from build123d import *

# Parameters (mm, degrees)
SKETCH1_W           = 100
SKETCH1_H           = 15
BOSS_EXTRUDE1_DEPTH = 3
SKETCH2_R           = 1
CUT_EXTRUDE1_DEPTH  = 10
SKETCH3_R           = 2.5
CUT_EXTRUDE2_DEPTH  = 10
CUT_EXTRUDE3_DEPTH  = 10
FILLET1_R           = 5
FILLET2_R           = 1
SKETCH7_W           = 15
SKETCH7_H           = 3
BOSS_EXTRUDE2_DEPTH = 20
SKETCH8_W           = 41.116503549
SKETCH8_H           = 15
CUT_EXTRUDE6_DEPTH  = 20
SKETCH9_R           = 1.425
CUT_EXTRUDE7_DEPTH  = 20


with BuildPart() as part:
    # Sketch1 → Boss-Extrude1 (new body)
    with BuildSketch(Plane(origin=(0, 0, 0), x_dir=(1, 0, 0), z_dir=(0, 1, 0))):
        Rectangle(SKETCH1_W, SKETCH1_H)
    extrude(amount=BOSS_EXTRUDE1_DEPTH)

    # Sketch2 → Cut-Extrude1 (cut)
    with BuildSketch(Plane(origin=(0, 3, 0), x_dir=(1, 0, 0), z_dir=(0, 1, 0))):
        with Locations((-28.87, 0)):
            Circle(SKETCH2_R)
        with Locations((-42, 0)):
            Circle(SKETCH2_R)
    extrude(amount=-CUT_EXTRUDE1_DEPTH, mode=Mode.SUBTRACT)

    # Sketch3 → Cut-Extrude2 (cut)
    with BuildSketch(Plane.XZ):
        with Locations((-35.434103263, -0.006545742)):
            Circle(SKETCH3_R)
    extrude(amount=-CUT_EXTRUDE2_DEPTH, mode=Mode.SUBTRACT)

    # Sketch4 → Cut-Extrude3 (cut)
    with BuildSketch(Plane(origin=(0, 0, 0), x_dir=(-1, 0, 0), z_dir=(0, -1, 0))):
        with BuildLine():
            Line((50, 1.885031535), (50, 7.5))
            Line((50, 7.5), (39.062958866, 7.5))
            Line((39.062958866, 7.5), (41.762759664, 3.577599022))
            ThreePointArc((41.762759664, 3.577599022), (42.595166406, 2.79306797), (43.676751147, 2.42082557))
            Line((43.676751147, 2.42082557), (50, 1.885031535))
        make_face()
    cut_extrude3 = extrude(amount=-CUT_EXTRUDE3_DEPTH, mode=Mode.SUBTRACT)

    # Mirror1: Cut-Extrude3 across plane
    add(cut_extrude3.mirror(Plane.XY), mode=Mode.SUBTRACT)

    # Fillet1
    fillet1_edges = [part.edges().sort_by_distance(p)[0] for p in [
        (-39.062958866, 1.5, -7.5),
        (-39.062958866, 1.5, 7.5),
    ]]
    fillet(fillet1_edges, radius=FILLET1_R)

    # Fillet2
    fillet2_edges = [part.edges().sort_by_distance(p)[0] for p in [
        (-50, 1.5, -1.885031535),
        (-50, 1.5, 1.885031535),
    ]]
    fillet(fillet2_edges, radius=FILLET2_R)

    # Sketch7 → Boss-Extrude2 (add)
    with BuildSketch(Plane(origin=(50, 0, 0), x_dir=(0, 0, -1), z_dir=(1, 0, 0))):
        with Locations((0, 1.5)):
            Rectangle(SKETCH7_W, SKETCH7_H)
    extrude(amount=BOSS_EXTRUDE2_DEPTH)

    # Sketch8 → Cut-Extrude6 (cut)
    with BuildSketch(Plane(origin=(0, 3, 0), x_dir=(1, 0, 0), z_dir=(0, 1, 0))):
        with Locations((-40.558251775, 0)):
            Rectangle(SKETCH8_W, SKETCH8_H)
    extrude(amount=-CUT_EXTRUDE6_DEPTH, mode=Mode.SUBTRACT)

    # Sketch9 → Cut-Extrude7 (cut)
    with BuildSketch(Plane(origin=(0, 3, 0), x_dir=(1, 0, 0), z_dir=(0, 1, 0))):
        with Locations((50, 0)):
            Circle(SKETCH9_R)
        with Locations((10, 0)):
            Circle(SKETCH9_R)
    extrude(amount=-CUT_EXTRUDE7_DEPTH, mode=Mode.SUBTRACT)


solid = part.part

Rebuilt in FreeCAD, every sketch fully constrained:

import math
import FreeCAD as App
import Part
import Sketcher
from FreeCAD import Vector
Q = App.Units.Quantity


def edges_at(feature, points):
    """Names of the edges that pass closest to the given points."""
    edges = feature.Shape.Edges
    near = lambda p: min(range(len(edges)), key=lambda i: edges[i].distToShape(Part.Vertex(*p))[0])
    return sorted({f"Edge{near(p) + 1}" for p in points})


def add_polygon(sketch, points):
    """Adds a closed chain of lines whose ends are joined by coincident constraints."""
    first, n = sketch.GeometryCount, len(points)
    for a, b in zip(points, points[1:] + points[:1]):
        sketch.addGeometry(Part.LineSegment(App.Vector(*a, 0), App.Vector(*b, 0)), False)
    for i in range(n):
        sketch.addConstraint(Sketcher.Constraint("Coincident", first + i, 2, first + (i + 1) % n, 1))

doc = App.newDocument("Part")
params = doc.addObject("Spreadsheet::Sheet", "Params")
for row, (alias, value) in enumerate([
    ("sketch1_width", "100 mm"),
    ("sketch1_height", "15 mm"),
    ("pad1_length", "3 mm"),
    ("sketch2_diameter", "2 mm"),
    ("pocket1_length", "10 mm"),
    ("sketch3_diameter", "5 mm"),
    ("pocket2_length", "10 mm"),
    ("pocket3_length", "10 mm"),
    ("fillet_radius", "5 mm"),
    ("fillet2_radius", "1 mm"),
    ("sketch5_width", "3 mm"),
    ("sketch5_height", "15 mm"),
    ("pad2_length", "20 mm"),
    ("sketch6_height", "15 mm"),
    ("pocket4_length", "20 mm"),
    ("sketch7_diameter", "2.85 mm"),
    ("pocket5_length", "20 mm"),
], start=1):
    params.set(f"A{row}", alias)
    params.set(f"B{row}", "=" + value)
    params.setAlias(f"B{row}", alias)

body = doc.addObject("PartDesign::Body", "Body")

sketch1 = body.newObject("Sketcher::SketchObject", "Sketch")
sketch1.AttachmentSupport = (doc.getObject("XZ_Plane"), [""])
sketch1.MapMode = "FlatFace"
add_polygon(sketch1, [(-50, -8), (-50, 8), (50, 8), (50, -8)])
sketch1.addConstraint([
    Sketcher.Constraint("Vertical", 0),
    Sketcher.Constraint("Horizontal", 1),
    Sketcher.Constraint("Vertical", 2),
    Sketcher.Constraint("Horizontal", 3),
    Sketcher.Constraint("Symmetric", 0, 2, 2, 2, -1, 1),
    Sketcher.Constraint("DistanceX", 1, 1, 1, 2, Q("100 mm")),
    Sketcher.Constraint("DistanceY", 0, 1, 0, 2, Q("15 mm")),
])
sketch1.setExpression("Constraints[9]", "Params.sketch1_width")
sketch1.setExpression("Constraints[10]", "Params.sketch1_height")
pad1 = body.newObject("PartDesign::Pad", "Pad")
pad1.Profile = sketch1
pad1.setExpression("Length", "Params.pad1_length")
pad1.Reversed = True

sketch2 = body.newObject("Sketcher::SketchObject", "Sketch001")
sketch2.AttachmentSupport = (doc.getObject("XZ_Plane"), [""])
sketch2.MapMode = "FlatFace"
sketch2.AttachmentOffset = App.Placement(Vector(0, 0, -3), App.Rotation())
sketch2.addGeometry([
    Part.Circle(Vector(-28.9, 0, 0), Vector(0, 0, 1), 1),
    Part.Circle(Vector(-42, 0, 0), Vector(0, 0, 1), 1),
], False)
sketch2.addConstraint([
    Sketcher.Constraint("Equal", 0, 1),
    Sketcher.Constraint("PointOnObject", 0, 3, -1),
    Sketcher.Constraint("PointOnObject", 1, 3, -1),
    Sketcher.Constraint("Diameter", 0, Q("2 mm")),
    Sketcher.Constraint("DistanceX", 1, 3, -1, 1, Q("42 mm")),
    Sketcher.Constraint("DistanceX", 0, 3, -1, 1, Q("28.87 mm")),
])
sketch2.setExpression("Constraints[3]", "Params.sketch2_diameter")
pocket1 = body.newObject("PartDesign::Pocket", "Pocket")
pocket1.Profile = sketch2
pocket1.setExpression("Length", "Params.pocket1_length")
pocket1.Reversed = True

sketch3 = body.newObject("Sketcher::SketchObject", "Sketch002")
sketch3.AttachmentSupport = (doc.getObject("XZ_Plane"), [""])
sketch3.MapMode = "FlatFace"
sketch3.addGeometry(Part.Circle(Vector(-35.4, 0, 0), Vector(0, 0, 1), 2.5), False)
sketch3.addConstraint([
    Sketcher.Constraint("Diameter", 0, Q("5 mm")),
    Sketcher.Constraint("DistanceX", 0, 3, -1, 1, Q("35.434103 mm")),
    Sketcher.Constraint("DistanceY", 0, 3, -1, 1, Q("0.006546 mm")),
])
sketch3.setExpression("Constraints[0]", "Params.sketch3_diameter")
pocket2 = body.newObject("PartDesign::Pocket", "Pocket001")
pocket2.Profile = sketch3
pocket2.setExpression("Length", "Params.pocket2_length")

sketch4 = body.newObject("Sketcher::SketchObject", "Sketch003")
sketch4.AttachmentSupport = (doc.getObject("XZ_Plane"), [""])
sketch4.MapMode = "FlatFace"
sketch4.addGeometry([
    Part.LineSegment(Vector(-50, -1.9, 0), Vector(-50, -7.5, 0)),
    Part.LineSegment(Vector(-50, -7.5, 0), Vector(-39.1, -7.5, 0)),
    Part.LineSegment(Vector(-39.1, -7.5, 0), Vector(-41.8, -3.6, 0)),
    Part.ArcOfCircle(Part.Circle(Vector(-44, -5.1, 0), Vector(0, 0, 1), 2.7), math.radians(35), math.radians(83)),
    Part.LineSegment(Vector(-43.7, -2.4, 0), Vector(-50, -1.9, 0)),
], False)
sketch4.addConstraint([
    Sketcher.Constraint("Coincident", 0, 2, 1, 1),
    Sketcher.Constraint("Coincident", 1, 2, 2, 1),
    Sketcher.Constraint("Tangent", 2, 2, 3, 1),
    Sketcher.Constraint("Coincident", 3, 2, 4, 1),
    Sketcher.Constraint("Coincident", 4, 2, 0, 1),
    Sketcher.Constraint("Vertical", 0),
    Sketcher.Constraint("Horizontal", 1),
    Sketcher.Constraint("DistanceX", 3, 3, -1, 1, Q("44 mm")),
    Sketcher.Constraint("DistanceX", 0, 2, -1, 1, Q("50 mm")),
    Sketcher.Constraint("DistanceY", 0, 2, -1, 1, Q("7.5 mm")),
    Sketcher.Constraint("Radius", 3, Q("2.715978 mm")),
    Sketcher.Constraint("DistanceX", 1, 1, 1, 2, Q("10.937041 mm")),
    Sketcher.Constraint("DistanceY", 0, 2, 0, 1, Q("5.614968 mm")),
    Sketcher.Constraint("DistanceY", 3, 3, -1, 1, Q("5.117499 mm")),
    Sketcher.Constraint("Distance", 4, Q("6.345908 mm")),
])
pocket3 = body.newObject("PartDesign::Pocket", "Pocket002")
pocket3.Profile = sketch4
pocket3.setExpression("Length", "Params.pocket3_length")
doc.recompute()

mirrored = body.newObject("PartDesign::Mirrored", "Mirrored")
mirrored.Originals = [pocket3]
mirrored.MirrorPlane = (doc.getObject("XY_Plane"), [""])
body.Tip = mirrored
doc.recompute()

fillet = body.newObject("PartDesign::Fillet", "Fillet")
fillet.Base = (mirrored, edges_at(mirrored, [(-39.063, 1.5, -7.5), (-39.063, 1.5, 7.5)]))
fillet.setExpression("Radius", "Params.fillet_radius")
doc.recompute()

fillet2 = body.newObject("PartDesign::Fillet", "Fillet001")
fillet2.Base = (fillet, edges_at(fillet, [(-50, 1.5, -1.885), (-50, 1.5, 1.885)]))
fillet2.setExpression("Radius", "Params.fillet2_radius")

sketch5 = body.newObject("Sketcher::SketchObject", "Sketch004")
sketch5.AttachmentSupport = (doc.getObject("YZ_Plane"), [""])
sketch5.MapMode = "FlatFace"
sketch5.AttachmentOffset = App.Placement(Vector(0, 0, 50), App.Rotation())
add_polygon(sketch5, [(3, 7.5), (0, 7.5), (0, -7.5), (3, -7.5)])
sketch5.addConstraint([
    Sketcher.Constraint("Horizontal", 0),
    Sketcher.Constraint("Vertical", 1),
    Sketcher.Constraint("Horizontal", 2),
    Sketcher.Constraint("Vertical", 3),
    Sketcher.Constraint("Symmetric", 0, 2, 1, 2, -1, 1),
    Sketcher.Constraint("DistanceX", 0, 2, 0, 1, Q("3 mm")),
    Sketcher.Constraint("DistanceY", 1, 2, 1, 1, Q("15 mm")),
])
sketch5.setExpression("Constraints[9]", "Params.sketch5_width")
sketch5.setExpression("Constraints[10]", "Params.sketch5_height")
pad2 = body.newObject("PartDesign::Pad", "Pad001")
pad2.Profile = sketch5
pad2.setExpression("Length", "Params.pad2_length")

sketch6 = body.newObject("Sketcher::SketchObject", "Sketch005")
sketch6.AttachmentSupport = (doc.getObject("XZ_Plane"), [""])
sketch6.MapMode = "FlatFace"
sketch6.AttachmentOffset = App.Placement(Vector(0, 0, -3), App.Rotation())
add_polygon(sketch6, [(-61, -8), (-61, 8), (-20, 8), (-20, -8)])
sketch6.addConstraint([
    Sketcher.Constraint("Vertical", 0),
    Sketcher.Constraint("Horizontal", 1),
    Sketcher.Constraint("Vertical", 2),
    Sketcher.Constraint("Horizontal", 3),
    Sketcher.Constraint("DistanceY", 0, 1, 0, 2, Q("15 mm")),
    Sketcher.Constraint("DistanceX", 1, 2, -1, 1, Q("20 mm")),
    Sketcher.Constraint("DistanceY", -1, 1, 0, 2, Q("7.5 mm")),
    Sketcher.Constraint("DistanceX", 1, 1, 1, 2, Q("41.116504 mm")),
])
sketch6.setExpression("Constraints[8]", "Params.sketch6_height")
pocket4 = body.newObject("PartDesign::Pocket", "Pocket003")
pocket4.Profile = sketch6
pocket4.setExpression("Length", "Params.pocket4_length")
pocket4.Reversed = True

sketch7 = body.newObject("Sketcher::SketchObject", "Sketch006")
sketch7.AttachmentSupport = (doc.getObject("XZ_Plane"), [""])
sketch7.MapMode = "FlatFace"
sketch7.AttachmentOffset = App.Placement(Vector(0, 0, -3), App.Rotation())
sketch7.addGeometry([
    Part.Circle(Vector(50, 0, 0), Vector(0, 0, 1), 1.4),
    Part.Circle(Vector(10, 0, 0), Vector(0, 0, 1), 1.4),
], False)
sketch7.addConstraint([
    Sketcher.Constraint("Equal", 0, 1),
    Sketcher.Constraint("PointOnObject", 0, 3, -1),
    Sketcher.Constraint("PointOnObject", 1, 3, -1),
    Sketcher.Constraint("Diameter", 0, Q("2.85 mm")),
    Sketcher.Constraint("DistanceX", -1, 1, 0, 3, Q("50 mm")),
    Sketcher.Constraint("DistanceX", -1, 1, 1, 3, Q("10 mm")),
])
sketch7.setExpression("Constraints[3]", "Params.sketch7_diameter")
pocket5 = body.newObject("PartDesign::Pocket", "Pocket004")
pocket5.Profile = sketch7
pocket5.setExpression("Length", "Params.pocket5_length")
pocket5.Reversed = True

doc.recompute()
